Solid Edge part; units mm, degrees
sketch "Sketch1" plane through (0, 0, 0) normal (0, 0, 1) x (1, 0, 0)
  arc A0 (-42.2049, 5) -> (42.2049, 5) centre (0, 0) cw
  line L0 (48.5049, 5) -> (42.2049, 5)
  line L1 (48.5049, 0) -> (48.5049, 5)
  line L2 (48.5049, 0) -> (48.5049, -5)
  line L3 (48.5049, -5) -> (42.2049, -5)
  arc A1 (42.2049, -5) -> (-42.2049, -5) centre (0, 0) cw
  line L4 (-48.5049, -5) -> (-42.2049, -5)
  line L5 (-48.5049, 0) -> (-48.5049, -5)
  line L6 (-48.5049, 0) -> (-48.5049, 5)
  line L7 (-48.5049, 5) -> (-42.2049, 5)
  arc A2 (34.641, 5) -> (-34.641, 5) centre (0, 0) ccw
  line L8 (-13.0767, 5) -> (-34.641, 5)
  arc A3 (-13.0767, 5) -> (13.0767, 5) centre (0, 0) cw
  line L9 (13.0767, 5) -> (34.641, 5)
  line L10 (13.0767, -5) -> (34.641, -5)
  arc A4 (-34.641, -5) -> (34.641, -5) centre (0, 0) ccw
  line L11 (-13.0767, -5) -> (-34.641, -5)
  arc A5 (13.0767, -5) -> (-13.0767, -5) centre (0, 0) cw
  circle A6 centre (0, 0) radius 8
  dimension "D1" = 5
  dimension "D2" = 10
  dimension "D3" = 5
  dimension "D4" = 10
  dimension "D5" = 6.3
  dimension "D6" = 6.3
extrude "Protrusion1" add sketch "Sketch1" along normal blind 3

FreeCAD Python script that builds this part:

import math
import FreeCAD as App
import Part
import Sketcher

V = App.Vector

doc = App.newDocument("Part")
body = doc.addObject("PartDesign::Body", "Body")

# Sketch on XY plane
sketch1 = body.newObject("Sketcher::SketchObject", "Sketch")
sketch1.AttachmentSupport = (doc.getObject("XY_Plane"), [""])
sketch1.MapMode = "FlatFace"
sketch1.addGeometry(Part.ArcOfCircle(Part.Circle(V(0, 0, 0), V(0, 0, 1), 43), math.radians(7), math.radians(173)), False)
sketch1.addGeometry(Part.LineSegment(V(-42, 5, 0), V(-49, 5, 0)), False)
sketch1.addGeometry(Part.LineSegment(V(-49, 5, 0), V(-49, -5, 0)), False)
sketch1.addGeometry(Part.LineSegment(V(-49, -5, 0), V(-42, -5, 0)), False)
sketch1.addGeometry(Part.ArcOfCircle(Part.Circle(V(0, 0, 0), V(0, 0, 1), 43), math.radians(-173), math.radians(-7)), False)
sketch1.addGeometry(Part.LineSegment(V(42, -5, 0), V(49, -5, 0)), False)
sketch1.addGeometry(Part.LineSegment(V(49, -5, 0), V(49, 5, 0)), False)
sketch1.addGeometry(Part.LineSegment(V(49, 5, 0), V(42, 5, 0)), False)
sketch1.addGeometry(Part.ArcOfCircle(Part.Circle(V(0, 0, 0), V(0, 0, 1), 14), math.radians(-159), math.radians(-21)), False)
sketch1.addGeometry(Part.LineSegment(V(13, -5, 0), V(35, -5, 0)), False)
sketch1.addGeometry(Part.ArcOfCircle(Part.Circle(V(0, 0, 0), V(0, 0, 1), 35), math.radians(-172), math.radians(-8)), False)
sketch1.addGeometry(Part.LineSegment(V(-35, -5, 0), V(-13, -5, 0)), False)
sketch1.addGeometry(Part.Circle(V(0, 0, 0), V(0, 0, 1), 8), False)
sketch1.addGeometry(Part.ArcOfCircle(Part.Circle(V(0, 0, 0), V(0, 0, 1), 35), math.radians(8), math.radians(172)), False)
sketch1.addGeometry(Part.LineSegment(V(35, 5, 0), V(13, 5, 0)), False)
sketch1.addGeometry(Part.ArcOfCircle(Part.Circle(V(0, 0, 0), V(0, 0, 1), 14), math.radians(21), math.radians(159)), False)
sketch1.addGeometry(Part.LineSegment(V(-13, 5, 0), V(-35, 5, 0)), False)
sketch1.addConstraint(Sketcher.Constraint("Coincident", 0, 2, 1, 1))
sketch1.addConstraint(Sketcher.Constraint("Coincident", 1, 2, 2, 1))
sketch1.addConstraint(Sketcher.Constraint("Coincident", 2, 2, 3, 1))
sketch1.addConstraint(Sketcher.Constraint("Coincident", 3, 2, 4, 1))
sketch1.addConstraint(Sketcher.Constraint("Coincident", 4, 2, 5, 1))
sketch1.addConstraint(Sketcher.Constraint("Coincident", 5, 2, 6, 1))
sketch1.addConstraint(Sketcher.Constraint("Coincident", 6, 2, 7, 1))
sketch1.addConstraint(Sketcher.Constraint("Coincident", 7, 2, 0, 1))
sketch1.addConstraint(Sketcher.Constraint("Coincident", 8, 2, 9, 1))
sketch1.addConstraint(Sketcher.Constraint("Coincident", 9, 2, 10, 2))
sketch1.addConstraint(Sketcher.Constraint("Coincident", 10, 1, 11, 1))
sketch1.addConstraint(Sketcher.Constraint("Coincident", 11, 2, 8, 1))
sketch1.addConstraint(Sketcher.Constraint("Coincident", 13, 1, 14, 1))
sketch1.addConstraint(Sketcher.Constraint("Coincident", 14, 2, 15, 1))
sketch1.addConstraint(Sketcher.Constraint("Coincident", 15, 2, 16, 1))
sketch1.addConstraint(Sketcher.Constraint("Coincident", 16, 2, 13, 2))
sketch1.addConstraint(Sketcher.Constraint("Horizontal", 1))
sketch1.addConstraint(Sketcher.Constraint("Vertical", 2))
sketch1.addConstraint(Sketcher.Constraint("Horizontal", 3))
sketch1.addConstraint(Sketcher.Constraint("Horizontal", 5))
sketch1.addConstraint(Sketcher.Constraint("Vertical", 6))
sketch1.addConstraint(Sketcher.Constraint("Horizontal", 7))
sketch1.addConstraint(Sketcher.Constraint("Horizontal", 9))
sketch1.addConstraint(Sketcher.Constraint("Horizontal", 11))
sketch1.addConstraint(Sketcher.Constraint("Horizontal", 14))
sketch1.addConstraint(Sketcher.Constraint("Horizontal", 16))
sketch1.addConstraint(Sketcher.Constraint("Coincident", 0, 3, -1, 1))
sketch1.addConstraint(Sketcher.Constraint("Coincident", 4, 3, -1, 1))
sketch1.addConstraint(Sketcher.Constraint("Coincident", 8, 3, -1, 1))
sketch1.addConstraint(Sketcher.Constraint("Coincident", 10, 3, -1, 1))
sketch1.addConstraint(Sketcher.Constraint("Coincident", 12, 3, -1, 1))
sketch1.addConstraint(Sketcher.Constraint("Coincident", 13, 3, -1, 1))
sketch1.addConstraint(Sketcher.Constraint("Coincident", 15, 3, -1, 1))
sketch1.addConstraint(Sketcher.Constraint("Equal", 0, 4))
sketch1.addConstraint(Sketcher.Constraint("Equal", 10, 13))
sketch1.addConstraint(Sketcher.Constraint("Equal", 8, 15))
sketch1.addConstraint(Sketcher.Constraint("Symmetric", 1, 2, 5, 2, -1, 1))
sketch1.addConstraint(Sketcher.Constraint("Horizontal", 3, 2, 4, 2))
sketch1.addConstraint(Sketcher.Constraint("Horizontal", 1, 2, 6, 2))
sketch1.addConstraint(Sketcher.Constraint("Horizontal", 5, 2, 8, 2))
sketch1.addConstraint(Sketcher.Constraint("Horizontal", 9, 2, 10, 1))
sketch1.addConstraint(Sketcher.Constraint("Horizontal", 7, 2, 13, 1))
sketch1.addConstraint(Sketcher.Constraint("Horizontal", 14, 2, 15, 2))
sketch1.addConstraint(Sketcher.Constraint("Diameter", 12, 16.0))
sketch1.addConstraint(Sketcher.Constraint("Radius", 8, 14.0))
sketch1.addConstraint(Sketcher.Constraint("Radius", 10, 35.0))
sketch1.addConstraint(Sketcher.Constraint("Radius", 0, 42.5))
sketch1.addConstraint(Sketcher.Constraint("DistanceY", 2, 2, 2, 1, 10.0))
sketch1.addConstraint(Sketcher.Constraint("DistanceX", 1, 2, 1, 1, 6.3))
pad1 = body.newObject("PartDesign::Pad", "Pad")
pad1.Profile = sketch1
pad1.Length = 3

doc.recompute()
